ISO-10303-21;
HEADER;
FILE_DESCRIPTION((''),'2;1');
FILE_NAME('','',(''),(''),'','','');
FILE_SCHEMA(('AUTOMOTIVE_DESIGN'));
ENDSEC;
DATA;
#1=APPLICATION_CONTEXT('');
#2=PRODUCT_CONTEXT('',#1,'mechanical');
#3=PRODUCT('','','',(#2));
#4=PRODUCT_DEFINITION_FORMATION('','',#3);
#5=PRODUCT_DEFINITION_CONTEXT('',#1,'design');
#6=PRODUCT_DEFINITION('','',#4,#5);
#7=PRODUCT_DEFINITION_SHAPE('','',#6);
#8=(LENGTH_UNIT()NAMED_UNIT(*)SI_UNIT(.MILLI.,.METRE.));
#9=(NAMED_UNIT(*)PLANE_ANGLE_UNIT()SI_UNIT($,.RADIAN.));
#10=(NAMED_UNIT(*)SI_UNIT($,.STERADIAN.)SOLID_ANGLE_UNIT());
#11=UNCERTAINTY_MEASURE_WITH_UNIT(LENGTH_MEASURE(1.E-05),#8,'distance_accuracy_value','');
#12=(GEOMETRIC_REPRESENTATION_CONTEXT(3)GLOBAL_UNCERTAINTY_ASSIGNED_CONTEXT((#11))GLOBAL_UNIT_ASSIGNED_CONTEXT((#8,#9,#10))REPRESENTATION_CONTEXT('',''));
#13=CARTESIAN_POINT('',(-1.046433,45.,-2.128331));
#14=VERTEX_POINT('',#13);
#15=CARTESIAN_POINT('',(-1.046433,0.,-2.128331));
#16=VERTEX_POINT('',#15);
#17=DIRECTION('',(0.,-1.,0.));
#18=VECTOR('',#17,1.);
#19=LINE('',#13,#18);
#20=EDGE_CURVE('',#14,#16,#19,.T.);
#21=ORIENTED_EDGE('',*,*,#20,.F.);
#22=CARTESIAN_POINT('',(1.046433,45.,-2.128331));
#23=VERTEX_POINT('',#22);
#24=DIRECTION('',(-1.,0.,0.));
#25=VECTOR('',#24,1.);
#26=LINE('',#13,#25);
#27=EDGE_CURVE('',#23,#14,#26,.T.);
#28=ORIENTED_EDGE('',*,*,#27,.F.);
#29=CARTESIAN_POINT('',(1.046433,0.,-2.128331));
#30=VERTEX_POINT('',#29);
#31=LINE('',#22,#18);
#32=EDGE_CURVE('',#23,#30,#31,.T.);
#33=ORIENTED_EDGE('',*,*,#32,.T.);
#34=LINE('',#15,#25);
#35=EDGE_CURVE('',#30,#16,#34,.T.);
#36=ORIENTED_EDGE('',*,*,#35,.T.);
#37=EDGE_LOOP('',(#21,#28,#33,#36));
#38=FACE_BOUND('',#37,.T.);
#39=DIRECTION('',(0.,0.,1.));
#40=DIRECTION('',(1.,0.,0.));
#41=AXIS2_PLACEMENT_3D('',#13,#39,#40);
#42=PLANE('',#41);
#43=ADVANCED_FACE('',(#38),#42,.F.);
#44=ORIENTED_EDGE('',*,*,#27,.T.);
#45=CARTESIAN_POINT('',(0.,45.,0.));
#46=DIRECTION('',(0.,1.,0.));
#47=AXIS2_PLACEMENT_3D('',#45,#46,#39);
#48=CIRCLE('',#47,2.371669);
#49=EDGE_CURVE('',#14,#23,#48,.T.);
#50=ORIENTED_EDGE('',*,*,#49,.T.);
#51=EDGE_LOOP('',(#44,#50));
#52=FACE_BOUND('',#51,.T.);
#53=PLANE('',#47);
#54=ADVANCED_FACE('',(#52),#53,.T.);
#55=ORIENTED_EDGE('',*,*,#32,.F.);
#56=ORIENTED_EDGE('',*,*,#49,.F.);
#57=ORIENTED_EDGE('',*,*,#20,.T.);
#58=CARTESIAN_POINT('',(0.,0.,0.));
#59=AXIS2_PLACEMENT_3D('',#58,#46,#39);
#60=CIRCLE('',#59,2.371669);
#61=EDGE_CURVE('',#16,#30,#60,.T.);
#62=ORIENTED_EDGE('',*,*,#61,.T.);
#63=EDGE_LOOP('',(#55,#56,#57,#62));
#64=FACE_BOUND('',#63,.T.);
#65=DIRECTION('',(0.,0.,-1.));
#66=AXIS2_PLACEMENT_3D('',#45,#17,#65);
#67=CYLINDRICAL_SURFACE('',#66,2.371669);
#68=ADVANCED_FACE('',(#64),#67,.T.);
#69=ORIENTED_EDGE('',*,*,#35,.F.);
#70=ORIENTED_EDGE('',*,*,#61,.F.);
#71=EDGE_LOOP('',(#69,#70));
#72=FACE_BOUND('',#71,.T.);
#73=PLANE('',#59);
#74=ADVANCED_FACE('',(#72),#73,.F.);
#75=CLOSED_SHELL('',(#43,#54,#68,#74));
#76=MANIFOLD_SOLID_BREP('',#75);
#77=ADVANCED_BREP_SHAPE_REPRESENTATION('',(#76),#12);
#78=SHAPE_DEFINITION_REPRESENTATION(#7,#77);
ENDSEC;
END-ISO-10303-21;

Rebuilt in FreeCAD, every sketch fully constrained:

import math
import FreeCAD as App
import Part
import Sketcher

V = App.Vector

doc = App.newDocument("Part")
body = doc.addObject("PartDesign::Body", "Body")

# Sketch on XZ plane
sketch1 = doc.addObject("Sketcher::SketchObject", "Sketch")
body.addObject(sketch1)
sketch1.AttachmentSupport = (doc.XZ_Plane, [""])
sketch1.MapMode = "FlatFace"
sketch1.addGeometry(Part.LineSegment(V(1, -2.1, 0), V(-1, -2.1, 0)), False)
sketch1.addGeometry(Part.ArcOfCircle(Part.Circle(V(0, 0, 0), V(0, 0, 1), 2.4), math.radians(-64), math.radians(244)), False)
sketch1.addConstraint(Sketcher.Constraint("Coincident", 0, 1, 1, 1))
sketch1.addConstraint(Sketcher.Constraint("Coincident", 1, 2, 0, 2))
sketch1.addConstraint(Sketcher.Constraint("Horizontal", 0))
sketch1.addConstraint(Sketcher.Constraint("Coincident", 1, 3, -1, 1))
sketch1.addConstraint(Sketcher.Constraint("Radius", 1, 2.371669))
sketch1.addConstraint(Sketcher.Constraint("DistanceX", 0, 2, 0, 1, 2.092865))
pad1 = doc.addObject("PartDesign::Pad", "Pad")
body.addObject(pad1)
pad1.Profile = sketch1
pad1.Length = 45
pad1.Reversed = True

doc.recompute()
